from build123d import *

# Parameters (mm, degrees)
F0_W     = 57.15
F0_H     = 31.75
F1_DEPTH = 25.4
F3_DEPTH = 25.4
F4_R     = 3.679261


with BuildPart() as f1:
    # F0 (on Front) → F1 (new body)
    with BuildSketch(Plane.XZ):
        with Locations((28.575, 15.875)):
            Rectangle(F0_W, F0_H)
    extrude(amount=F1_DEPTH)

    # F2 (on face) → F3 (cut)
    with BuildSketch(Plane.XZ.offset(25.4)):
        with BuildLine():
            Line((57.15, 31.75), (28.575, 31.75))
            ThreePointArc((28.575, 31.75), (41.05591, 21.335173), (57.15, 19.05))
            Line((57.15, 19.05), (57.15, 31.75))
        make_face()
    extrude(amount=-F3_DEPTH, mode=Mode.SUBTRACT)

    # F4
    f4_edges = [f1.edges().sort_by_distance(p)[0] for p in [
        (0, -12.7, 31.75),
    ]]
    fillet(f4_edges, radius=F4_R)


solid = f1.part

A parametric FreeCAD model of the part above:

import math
import FreeCAD as App
import Part
import Sketcher

V = App.Vector
Q = App.Units.Quantity


def edges_at(feature, points):
    """Names of the edges that pass closest to the given points."""
    edges = feature.Shape.Edges
    near = lambda p: min(range(len(edges)), key=lambda i: edges[i].distToShape(Part.Vertex(*p))[0])
    return sorted({f"Edge{near(p) + 1}" for p in points})

doc = App.newDocument("Part")
body = doc.addObject("PartDesign::Body", "Body")

sketch1 = doc.addObject("Sketcher::SketchObject", "Sketch")
body.addObject(sketch1)
sketch1.AttachmentSupport = (doc.XZ_Plane, [""])
sketch1.MapMode = "FlatFace"
sketch1.addGeometry([
    Part.LineSegment(V(0, 32, 0), V(0, 0, 0)),
    Part.LineSegment(V(0, 0, 0), V(57, 0, 0)),
    Part.LineSegment(V(57, 0, 0), V(57, 32, 0)),
    Part.LineSegment(V(57, 32, 0), V(0, 32, 0)),
], False)
sketch1.addConstraint([
    Sketcher.Constraint("Coincident", 0, 2, 1, 1),
    Sketcher.Constraint("Coincident", 1, 2, 2, 1),
    Sketcher.Constraint("Coincident", 2, 2, 3, 1),
    Sketcher.Constraint("Coincident", 3, 2, 0, 1),
    Sketcher.Constraint("Vertical", 0),
    Sketcher.Constraint("Horizontal", 1),
    Sketcher.Constraint("Vertical", 2),
    Sketcher.Constraint("Horizontal", 3),
    Sketcher.Constraint("Coincident", 0, 2, -1, 1),
    Sketcher.Constraint("DistanceX", 1, 1, 1, 2, Q("2.25 in")),
    Sketcher.Constraint("DistanceY", 0, 2, 0, 1, Q("1.25 in")),
])
pad1 = doc.addObject("PartDesign::Pad", "Pad")
body.addObject(pad1)
pad1.Profile = sketch1
pad1.Length = Q("1 in")

sketch2 = doc.addObject("Sketcher::SketchObject", "Sketch001")
body.addObject(sketch2)
sketch2.AttachmentSupport = (doc.XZ_Plane, [""])
sketch2.MapMode = "FlatFace"
sketch2.AttachmentOffset = App.Placement(V(0, 0, 1 * 25.4), App.Rotation())
sketch2.addGeometry([
    Part.LineSegment(V(57, 32, 0), V(29, 32, 0)),
    Part.ArcOfCircle(Part.Circle(V(53, 48, 0), V(0, 0, 1), 30), math.radians(-146), math.radians(-82)),
    Part.LineSegment(V(57, 19, 0), V(57, 32, 0)),
], False)
sketch2.addConstraint([
    Sketcher.Constraint("Coincident", 0, 2, 1, 1),
    Sketcher.Constraint("Coincident", 1, 2, 2, 1),
    Sketcher.Constraint("Coincident", 2, 2, 0, 1),
    Sketcher.Constraint("Horizontal", 0),
    Sketcher.Constraint("Vertical", 2),
    Sketcher.Constraint("DistanceY", 2, 1, 2, 2, Q("0.5 in")),
    Sketcher.Constraint("DistanceX", 0, 2, 0, 1, Q("1.125 in")),
    Sketcher.Constraint("DistanceY", -1, 1, 0, 2, Q("1.25 in")),
    Sketcher.Constraint("DistanceX", -1, 1, 1, 2, Q("2.25 in")),
    Sketcher.Constraint("Radius", 1, 29.702021),
])
pocket1 = doc.addObject("PartDesign::Pocket", "Pocket")
body.addObject(pocket1)
pocket1.Profile = sketch2
pocket1.Length = Q("1 in")
doc.recompute()

fillet = doc.addObject("PartDesign::Fillet", "Fillet")
body.addObject(fillet)
fillet.Base = (pocket1, edges_at(pocket1, [(0, -12.7, 31.75)]))
fillet.Radius = 3.679261

doc.recompute()
